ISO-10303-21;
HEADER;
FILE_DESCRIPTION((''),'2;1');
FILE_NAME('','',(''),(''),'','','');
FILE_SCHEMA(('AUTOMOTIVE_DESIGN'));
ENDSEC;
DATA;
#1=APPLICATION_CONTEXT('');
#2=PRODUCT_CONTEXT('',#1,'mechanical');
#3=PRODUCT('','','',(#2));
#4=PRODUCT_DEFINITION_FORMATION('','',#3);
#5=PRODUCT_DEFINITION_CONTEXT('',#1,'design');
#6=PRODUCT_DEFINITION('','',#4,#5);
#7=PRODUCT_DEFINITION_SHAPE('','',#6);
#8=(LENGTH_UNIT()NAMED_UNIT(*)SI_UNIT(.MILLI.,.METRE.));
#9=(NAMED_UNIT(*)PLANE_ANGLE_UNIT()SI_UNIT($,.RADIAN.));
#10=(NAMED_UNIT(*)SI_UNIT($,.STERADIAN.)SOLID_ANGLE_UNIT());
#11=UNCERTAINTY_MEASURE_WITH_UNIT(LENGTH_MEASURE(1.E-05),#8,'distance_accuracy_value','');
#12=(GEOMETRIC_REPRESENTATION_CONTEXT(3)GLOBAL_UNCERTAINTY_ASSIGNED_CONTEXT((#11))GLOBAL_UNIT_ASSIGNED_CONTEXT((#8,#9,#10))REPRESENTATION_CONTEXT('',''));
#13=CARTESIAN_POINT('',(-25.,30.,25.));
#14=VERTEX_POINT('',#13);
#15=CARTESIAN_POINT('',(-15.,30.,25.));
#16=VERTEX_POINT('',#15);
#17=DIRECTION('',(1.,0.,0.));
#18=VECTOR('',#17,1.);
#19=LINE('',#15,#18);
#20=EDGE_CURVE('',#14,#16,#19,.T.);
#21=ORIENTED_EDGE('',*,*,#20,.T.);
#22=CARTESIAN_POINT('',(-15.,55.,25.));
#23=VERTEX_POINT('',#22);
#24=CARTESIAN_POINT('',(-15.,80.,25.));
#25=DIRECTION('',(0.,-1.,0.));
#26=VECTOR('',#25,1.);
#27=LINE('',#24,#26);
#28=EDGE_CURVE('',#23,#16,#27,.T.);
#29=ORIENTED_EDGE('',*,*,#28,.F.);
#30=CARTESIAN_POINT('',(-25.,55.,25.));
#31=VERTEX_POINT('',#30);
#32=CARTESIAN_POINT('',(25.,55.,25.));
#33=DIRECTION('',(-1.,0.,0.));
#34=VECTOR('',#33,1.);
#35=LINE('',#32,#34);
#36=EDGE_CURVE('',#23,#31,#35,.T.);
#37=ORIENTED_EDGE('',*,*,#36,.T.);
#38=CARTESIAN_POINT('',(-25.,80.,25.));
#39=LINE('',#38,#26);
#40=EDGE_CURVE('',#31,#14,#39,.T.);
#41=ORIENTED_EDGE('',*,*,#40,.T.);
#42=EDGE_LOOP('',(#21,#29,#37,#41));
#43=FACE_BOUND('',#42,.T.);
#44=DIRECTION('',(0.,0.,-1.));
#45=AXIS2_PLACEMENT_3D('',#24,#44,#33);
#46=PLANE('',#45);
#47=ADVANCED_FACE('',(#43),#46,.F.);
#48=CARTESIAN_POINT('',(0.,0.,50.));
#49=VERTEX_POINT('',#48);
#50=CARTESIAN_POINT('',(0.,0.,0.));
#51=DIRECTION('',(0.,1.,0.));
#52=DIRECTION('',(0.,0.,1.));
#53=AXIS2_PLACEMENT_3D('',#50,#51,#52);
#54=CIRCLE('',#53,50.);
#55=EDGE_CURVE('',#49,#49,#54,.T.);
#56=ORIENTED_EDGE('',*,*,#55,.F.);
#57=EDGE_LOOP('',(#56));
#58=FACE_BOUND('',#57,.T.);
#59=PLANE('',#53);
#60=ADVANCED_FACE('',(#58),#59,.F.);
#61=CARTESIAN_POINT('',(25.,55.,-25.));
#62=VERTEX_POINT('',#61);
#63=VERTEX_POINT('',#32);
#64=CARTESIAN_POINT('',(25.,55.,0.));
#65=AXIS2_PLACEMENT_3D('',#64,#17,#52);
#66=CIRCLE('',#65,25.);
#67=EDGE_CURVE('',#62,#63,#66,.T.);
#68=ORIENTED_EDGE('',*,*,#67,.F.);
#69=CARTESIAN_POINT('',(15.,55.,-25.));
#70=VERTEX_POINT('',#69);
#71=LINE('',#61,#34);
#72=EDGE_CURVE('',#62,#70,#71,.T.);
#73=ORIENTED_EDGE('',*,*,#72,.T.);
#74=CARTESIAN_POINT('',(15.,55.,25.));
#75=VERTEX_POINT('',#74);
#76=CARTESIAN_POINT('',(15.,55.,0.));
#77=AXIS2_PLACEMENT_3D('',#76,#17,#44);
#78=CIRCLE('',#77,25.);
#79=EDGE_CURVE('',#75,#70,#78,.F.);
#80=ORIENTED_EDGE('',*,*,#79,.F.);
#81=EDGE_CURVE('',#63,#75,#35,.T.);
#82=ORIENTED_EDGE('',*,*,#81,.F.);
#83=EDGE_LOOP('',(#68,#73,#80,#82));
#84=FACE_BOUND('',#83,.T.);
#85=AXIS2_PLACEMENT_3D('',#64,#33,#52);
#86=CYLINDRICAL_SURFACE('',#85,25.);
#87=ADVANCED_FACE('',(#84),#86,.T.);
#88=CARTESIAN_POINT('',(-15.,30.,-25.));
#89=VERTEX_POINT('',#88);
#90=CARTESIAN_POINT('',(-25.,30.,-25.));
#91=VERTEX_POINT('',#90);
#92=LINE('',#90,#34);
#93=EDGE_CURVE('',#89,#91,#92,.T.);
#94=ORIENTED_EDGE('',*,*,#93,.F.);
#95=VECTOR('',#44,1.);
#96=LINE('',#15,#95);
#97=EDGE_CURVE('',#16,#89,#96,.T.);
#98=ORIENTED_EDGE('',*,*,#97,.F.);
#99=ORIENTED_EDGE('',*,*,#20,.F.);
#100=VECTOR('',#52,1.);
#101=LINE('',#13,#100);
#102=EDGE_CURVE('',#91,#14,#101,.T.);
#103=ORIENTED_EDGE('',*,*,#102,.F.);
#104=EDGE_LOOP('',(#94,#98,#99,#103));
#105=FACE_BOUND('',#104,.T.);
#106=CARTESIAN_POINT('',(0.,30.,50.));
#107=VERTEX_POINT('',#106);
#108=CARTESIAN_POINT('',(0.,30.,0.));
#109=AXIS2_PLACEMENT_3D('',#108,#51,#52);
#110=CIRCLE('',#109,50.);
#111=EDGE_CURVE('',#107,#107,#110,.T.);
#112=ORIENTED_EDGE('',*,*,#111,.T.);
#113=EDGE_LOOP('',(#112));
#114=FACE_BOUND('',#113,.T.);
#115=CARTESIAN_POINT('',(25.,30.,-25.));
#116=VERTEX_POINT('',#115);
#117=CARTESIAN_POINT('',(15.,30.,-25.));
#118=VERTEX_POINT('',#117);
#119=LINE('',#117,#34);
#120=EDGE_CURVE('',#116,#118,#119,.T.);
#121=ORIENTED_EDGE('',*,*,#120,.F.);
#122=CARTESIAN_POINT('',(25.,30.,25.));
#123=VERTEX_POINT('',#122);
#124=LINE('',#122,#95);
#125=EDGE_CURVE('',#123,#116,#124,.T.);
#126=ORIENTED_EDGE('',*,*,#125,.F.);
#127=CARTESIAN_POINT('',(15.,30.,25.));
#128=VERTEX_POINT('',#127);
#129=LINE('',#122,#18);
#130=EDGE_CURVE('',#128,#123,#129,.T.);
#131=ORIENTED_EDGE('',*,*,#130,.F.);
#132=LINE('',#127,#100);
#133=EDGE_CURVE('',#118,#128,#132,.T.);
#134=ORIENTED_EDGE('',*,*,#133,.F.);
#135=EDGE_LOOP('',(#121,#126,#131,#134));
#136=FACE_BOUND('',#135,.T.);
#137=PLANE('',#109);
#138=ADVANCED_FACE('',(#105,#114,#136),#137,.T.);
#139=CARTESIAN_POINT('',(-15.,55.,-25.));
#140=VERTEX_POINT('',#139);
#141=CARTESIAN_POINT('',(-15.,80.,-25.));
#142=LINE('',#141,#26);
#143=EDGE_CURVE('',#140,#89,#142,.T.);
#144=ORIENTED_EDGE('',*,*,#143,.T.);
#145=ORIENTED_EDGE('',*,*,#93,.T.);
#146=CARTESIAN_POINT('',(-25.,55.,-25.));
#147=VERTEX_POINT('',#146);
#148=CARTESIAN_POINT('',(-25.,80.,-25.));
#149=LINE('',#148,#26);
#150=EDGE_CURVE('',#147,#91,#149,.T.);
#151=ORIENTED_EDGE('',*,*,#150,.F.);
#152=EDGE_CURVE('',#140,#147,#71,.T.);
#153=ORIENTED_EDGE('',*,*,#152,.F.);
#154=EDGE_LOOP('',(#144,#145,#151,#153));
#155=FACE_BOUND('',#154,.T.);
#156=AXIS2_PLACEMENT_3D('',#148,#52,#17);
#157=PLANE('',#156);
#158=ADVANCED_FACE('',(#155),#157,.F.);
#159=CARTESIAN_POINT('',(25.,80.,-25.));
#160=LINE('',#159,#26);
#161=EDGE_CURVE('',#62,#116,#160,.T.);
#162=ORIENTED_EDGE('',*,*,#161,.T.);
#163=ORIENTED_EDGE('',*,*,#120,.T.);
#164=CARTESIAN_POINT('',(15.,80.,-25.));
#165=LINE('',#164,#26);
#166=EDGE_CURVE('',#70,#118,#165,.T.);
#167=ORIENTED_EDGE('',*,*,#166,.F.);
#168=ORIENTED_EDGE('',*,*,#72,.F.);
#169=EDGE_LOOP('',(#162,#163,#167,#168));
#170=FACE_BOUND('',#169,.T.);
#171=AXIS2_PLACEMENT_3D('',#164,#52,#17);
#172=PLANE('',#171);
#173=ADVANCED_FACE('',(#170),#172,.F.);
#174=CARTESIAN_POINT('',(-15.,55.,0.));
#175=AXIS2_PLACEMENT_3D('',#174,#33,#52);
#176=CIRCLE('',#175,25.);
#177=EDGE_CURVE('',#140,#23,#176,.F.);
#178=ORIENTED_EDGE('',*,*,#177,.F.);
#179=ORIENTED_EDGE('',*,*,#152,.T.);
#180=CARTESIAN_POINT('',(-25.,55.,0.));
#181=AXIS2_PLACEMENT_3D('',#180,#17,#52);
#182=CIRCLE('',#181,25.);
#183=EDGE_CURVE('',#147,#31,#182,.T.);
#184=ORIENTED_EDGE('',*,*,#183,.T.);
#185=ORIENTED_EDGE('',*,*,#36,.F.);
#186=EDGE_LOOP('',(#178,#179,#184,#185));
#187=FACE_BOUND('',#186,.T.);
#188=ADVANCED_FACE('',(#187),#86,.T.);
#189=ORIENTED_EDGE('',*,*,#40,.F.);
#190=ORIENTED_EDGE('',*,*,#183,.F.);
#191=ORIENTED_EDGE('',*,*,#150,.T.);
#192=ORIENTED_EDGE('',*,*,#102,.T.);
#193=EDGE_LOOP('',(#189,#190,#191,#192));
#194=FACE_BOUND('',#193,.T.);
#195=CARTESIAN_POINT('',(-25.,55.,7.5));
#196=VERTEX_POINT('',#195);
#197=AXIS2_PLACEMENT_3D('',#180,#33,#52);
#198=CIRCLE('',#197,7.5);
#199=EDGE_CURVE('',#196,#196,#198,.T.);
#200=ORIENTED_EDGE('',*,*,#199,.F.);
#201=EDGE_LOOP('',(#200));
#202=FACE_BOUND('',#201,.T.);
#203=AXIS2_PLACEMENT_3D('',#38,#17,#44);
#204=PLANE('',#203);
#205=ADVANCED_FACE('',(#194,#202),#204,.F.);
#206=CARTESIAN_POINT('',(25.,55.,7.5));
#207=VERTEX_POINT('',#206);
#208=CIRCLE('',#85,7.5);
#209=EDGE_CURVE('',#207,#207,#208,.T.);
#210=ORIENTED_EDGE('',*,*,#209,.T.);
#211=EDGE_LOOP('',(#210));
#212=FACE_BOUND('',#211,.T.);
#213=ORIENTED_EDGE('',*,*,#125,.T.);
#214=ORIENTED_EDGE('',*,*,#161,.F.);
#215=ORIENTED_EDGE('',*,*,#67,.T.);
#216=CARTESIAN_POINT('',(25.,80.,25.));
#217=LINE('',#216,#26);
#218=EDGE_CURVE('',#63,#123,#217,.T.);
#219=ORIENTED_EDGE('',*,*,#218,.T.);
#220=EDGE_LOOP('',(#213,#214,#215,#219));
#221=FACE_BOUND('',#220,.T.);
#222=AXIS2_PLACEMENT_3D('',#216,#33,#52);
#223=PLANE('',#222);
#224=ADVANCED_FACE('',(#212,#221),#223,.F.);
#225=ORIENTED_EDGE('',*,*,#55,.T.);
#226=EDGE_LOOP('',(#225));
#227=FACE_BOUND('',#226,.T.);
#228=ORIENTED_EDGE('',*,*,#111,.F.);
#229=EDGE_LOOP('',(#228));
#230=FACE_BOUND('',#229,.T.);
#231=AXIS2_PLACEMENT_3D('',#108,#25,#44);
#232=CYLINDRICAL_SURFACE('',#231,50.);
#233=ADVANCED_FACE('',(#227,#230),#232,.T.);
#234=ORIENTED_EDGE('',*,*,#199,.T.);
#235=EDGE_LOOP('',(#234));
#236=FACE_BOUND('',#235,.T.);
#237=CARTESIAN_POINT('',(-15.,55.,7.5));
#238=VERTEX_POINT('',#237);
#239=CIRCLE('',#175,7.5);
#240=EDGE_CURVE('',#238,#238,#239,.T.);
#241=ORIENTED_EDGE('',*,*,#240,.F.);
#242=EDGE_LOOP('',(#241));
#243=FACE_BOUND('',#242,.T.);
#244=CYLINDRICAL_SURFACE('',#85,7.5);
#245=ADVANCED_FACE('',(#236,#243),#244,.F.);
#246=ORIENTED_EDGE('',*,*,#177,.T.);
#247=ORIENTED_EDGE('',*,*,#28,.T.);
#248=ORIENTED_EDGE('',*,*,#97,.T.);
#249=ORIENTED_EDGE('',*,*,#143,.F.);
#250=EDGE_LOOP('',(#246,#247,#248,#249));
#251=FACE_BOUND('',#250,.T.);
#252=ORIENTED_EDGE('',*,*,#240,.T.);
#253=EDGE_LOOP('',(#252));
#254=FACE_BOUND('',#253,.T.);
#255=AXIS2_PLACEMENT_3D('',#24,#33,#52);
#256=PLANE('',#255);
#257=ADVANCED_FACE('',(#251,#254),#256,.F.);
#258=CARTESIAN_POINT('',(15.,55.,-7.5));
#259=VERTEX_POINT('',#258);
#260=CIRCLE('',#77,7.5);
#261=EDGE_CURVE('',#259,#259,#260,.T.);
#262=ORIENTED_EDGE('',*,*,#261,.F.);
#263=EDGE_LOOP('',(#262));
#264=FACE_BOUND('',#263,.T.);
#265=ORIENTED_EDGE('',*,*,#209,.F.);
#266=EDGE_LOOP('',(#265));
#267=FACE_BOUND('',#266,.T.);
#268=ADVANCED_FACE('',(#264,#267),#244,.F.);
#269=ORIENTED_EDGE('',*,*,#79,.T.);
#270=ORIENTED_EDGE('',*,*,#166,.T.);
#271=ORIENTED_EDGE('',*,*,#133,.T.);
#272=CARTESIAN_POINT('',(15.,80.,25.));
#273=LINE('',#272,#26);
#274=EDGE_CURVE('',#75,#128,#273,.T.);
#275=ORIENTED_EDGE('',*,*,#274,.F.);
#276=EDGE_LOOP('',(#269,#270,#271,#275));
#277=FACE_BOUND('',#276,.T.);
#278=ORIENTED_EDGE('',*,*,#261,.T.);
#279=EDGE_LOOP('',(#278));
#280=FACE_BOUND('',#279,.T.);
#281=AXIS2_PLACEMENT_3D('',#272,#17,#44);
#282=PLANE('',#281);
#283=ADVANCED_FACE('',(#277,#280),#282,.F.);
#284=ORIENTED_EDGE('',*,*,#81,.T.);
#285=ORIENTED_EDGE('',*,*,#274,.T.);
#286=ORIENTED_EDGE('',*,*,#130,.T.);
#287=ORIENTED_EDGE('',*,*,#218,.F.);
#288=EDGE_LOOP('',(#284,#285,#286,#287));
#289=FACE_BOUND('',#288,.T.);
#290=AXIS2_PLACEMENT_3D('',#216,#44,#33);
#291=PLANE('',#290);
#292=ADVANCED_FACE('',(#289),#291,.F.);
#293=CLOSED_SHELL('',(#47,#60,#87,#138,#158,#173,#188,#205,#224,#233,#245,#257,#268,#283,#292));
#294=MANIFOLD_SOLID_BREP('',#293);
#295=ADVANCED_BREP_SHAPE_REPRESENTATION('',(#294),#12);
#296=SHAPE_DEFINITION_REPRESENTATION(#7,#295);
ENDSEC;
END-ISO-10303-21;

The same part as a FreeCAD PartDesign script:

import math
import FreeCAD as App
import Part
import Sketcher
from FreeCAD import Vector


def add_polygon(sketch, points):
    """Adds a closed chain of lines whose ends are joined by coincident constraints."""
    first, n = sketch.GeometryCount, len(points)
    for a, b in zip(points, points[1:] + points[:1]):
        sketch.addGeometry(Part.LineSegment(App.Vector(*a, 0), App.Vector(*b, 0)), False)
    for i in range(n):
        sketch.addConstraint(Sketcher.Constraint("Coincident", first + i, 2, first + (i + 1) % n, 1))

doc = App.newDocument("Part")
body = doc.addObject("PartDesign::Body", "Body")

sketch1 = doc.addObject("Sketcher::SketchObject", "Sketch")
body.addObject(sketch1)
sketch1.AttachmentSupport = (doc.XZ_Plane, [""])
sketch1.MapMode = "FlatFace"
sketch1.addGeometry(Part.Circle(Vector(0, 0, 0), Vector(0, 0, 1), 50), False)
sketch1.addConstraint([
    Sketcher.Constraint("Coincident", 0, 3, -1, 1),
    Sketcher.Constraint("Diameter", 0, 100.0),
])
pad1 = doc.addObject("PartDesign::Pad", "Pad")
body.addObject(pad1)
pad1.Profile = sketch1
pad1.Length = 30
pad1.Reversed = True

sketch2 = doc.addObject("Sketcher::SketchObject", "Sketch001")
body.addObject(sketch2)
sketch2.AttachmentSupport = (doc.XZ_Plane, [""])
sketch2.MapMode = "FlatFace"
sketch2.AttachmentOffset = App.Placement(Vector(0, 0, -30), App.Rotation())
add_polygon(sketch2, [(-25, -25), (-25, 25), (-15, 25), (-15, -25)])
add_polygon(sketch2, [(15, -25), (15, 25), (25, 25), (25, -25)])
sketch2.addConstraint([
    Sketcher.Constraint("Vertical", 0),
    Sketcher.Constraint("Horizontal", 1),
    Sketcher.Constraint("Vertical", 2),
    Sketcher.Constraint("Horizontal", 3),
    Sketcher.Constraint("Vertical", 4),
    Sketcher.Constraint("Horizontal", 5),
    Sketcher.Constraint("Vertical", 6),
    Sketcher.Constraint("Horizontal", 7),
    Sketcher.Constraint("Symmetric", 2, 2, 4, 2, -1, 1),
    Sketcher.Constraint("Symmetric", 0, 2, 6, 2, -1, 1),
    Sketcher.Constraint("Horizontal", 1, 2, 4, 2),
    Sketcher.Constraint("DistanceX", 1, 1, 1, 2, 10.0),
    Sketcher.Constraint("DistanceY", 0, 1, 0, 2, 50.0),
    Sketcher.Constraint("DistanceX", 0, 2, -1, 1, 25.0),
])
pad2 = doc.addObject("PartDesign::Pad", "Pad001")
body.addObject(pad2)
pad2.Profile = sketch2
pad2.Length = 50
pad2.Reversed = True

sketch3 = doc.addObject("Sketcher::SketchObject", "Sketch002")
body.addObject(sketch3)
sketch3.AttachmentSupport = (doc.YZ_Plane, [""])
sketch3.MapMode = "FlatFace"
sketch3.AttachmentOffset = App.Placement(Vector(0, 0, -25), App.Rotation())
sketch3.addGeometry([
    Part.LineSegment(Vector(55, 31, 0), Vector(88, 31, 0)),
    Part.LineSegment(Vector(88, 31, 0), Vector(88, -34, 0)),
    Part.LineSegment(Vector(88, -34, 0), Vector(55, -34, 0)),
    Part.LineSegment(Vector(55, -34, 0), Vector(55, -25, 0)),
    Part.ArcOfCircle(Part.Circle(Vector(55, 0, 0), Vector(0, 0, 1), 25), math.radians(-90), math.radians(90)),
    Part.LineSegment(Vector(55, 25, 0), Vector(55, 31, 0)),
], False)
sketch3.addConstraint([
    Sketcher.Constraint("Coincident", 0, 2, 1, 1),
    Sketcher.Constraint("Coincident", 1, 2, 2, 1),
    Sketcher.Constraint("Coincident", 2, 2, 3, 1),
    Sketcher.Constraint("Coincident", 3, 2, 4, 1),
    Sketcher.Constraint("Coincident", 4, 2, 5, 1),
    Sketcher.Constraint("Coincident", 5, 2, 0, 1),
    Sketcher.Constraint("Horizontal", 0),
    Sketcher.Constraint("Vertical", 1),
    Sketcher.Constraint("Horizontal", 2),
    Sketcher.Constraint("Vertical", 3),
    Sketcher.Constraint("Vertical", 5),
    Sketcher.Constraint("Symmetric", 3, 2, 4, 2, -1),
    Sketcher.Constraint("Vertical", 4, 3, 2, 2),
    Sketcher.Constraint("Radius", 4, 25.0),
    Sketcher.Constraint("DistanceX", -1, 1, 4, 3, 55.0),
    Sketcher.Constraint("DistanceY", 3, 1, 3, 2, 9.201839),
    Sketcher.Constraint("DistanceX", 0, 1, 0, 2, 33.254535),
    Sketcher.Constraint("DistanceY", 1, 2, 1, 1, 65.054566),
])
pocket1 = doc.addObject("PartDesign::Pocket", "Pocket")
body.addObject(pocket1)
pocket1.Profile = sketch3
pocket1.Length = 50
pocket1.Reversed = True

sketch4 = doc.addObject("Sketcher::SketchObject", "Sketch003")
body.addObject(sketch4)
sketch4.AttachmentSupport = (doc.YZ_Plane, [""])
sketch4.MapMode = "FlatFace"
sketch4.AttachmentOffset = App.Placement(Vector(0, 0, -25), App.Rotation())
sketch4.addGeometry(Part.Circle(Vector(55, 0, 0), Vector(0, 0, 1), 8), False)
sketch4.addConstraint([
    Sketcher.Constraint("PointOnObject", 0, 3, -1),
    Sketcher.Constraint("Diameter", 0, 15.0),
    Sketcher.Constraint("DistanceX", -1, 1, 0, 3, 55.0),
])
pocket2 = doc.addObject("PartDesign::Pocket", "Pocket001")
body.addObject(pocket2)
pocket2.Profile = sketch4
pocket2.Length = 50
pocket2.Reversed = True

doc.recompute()
